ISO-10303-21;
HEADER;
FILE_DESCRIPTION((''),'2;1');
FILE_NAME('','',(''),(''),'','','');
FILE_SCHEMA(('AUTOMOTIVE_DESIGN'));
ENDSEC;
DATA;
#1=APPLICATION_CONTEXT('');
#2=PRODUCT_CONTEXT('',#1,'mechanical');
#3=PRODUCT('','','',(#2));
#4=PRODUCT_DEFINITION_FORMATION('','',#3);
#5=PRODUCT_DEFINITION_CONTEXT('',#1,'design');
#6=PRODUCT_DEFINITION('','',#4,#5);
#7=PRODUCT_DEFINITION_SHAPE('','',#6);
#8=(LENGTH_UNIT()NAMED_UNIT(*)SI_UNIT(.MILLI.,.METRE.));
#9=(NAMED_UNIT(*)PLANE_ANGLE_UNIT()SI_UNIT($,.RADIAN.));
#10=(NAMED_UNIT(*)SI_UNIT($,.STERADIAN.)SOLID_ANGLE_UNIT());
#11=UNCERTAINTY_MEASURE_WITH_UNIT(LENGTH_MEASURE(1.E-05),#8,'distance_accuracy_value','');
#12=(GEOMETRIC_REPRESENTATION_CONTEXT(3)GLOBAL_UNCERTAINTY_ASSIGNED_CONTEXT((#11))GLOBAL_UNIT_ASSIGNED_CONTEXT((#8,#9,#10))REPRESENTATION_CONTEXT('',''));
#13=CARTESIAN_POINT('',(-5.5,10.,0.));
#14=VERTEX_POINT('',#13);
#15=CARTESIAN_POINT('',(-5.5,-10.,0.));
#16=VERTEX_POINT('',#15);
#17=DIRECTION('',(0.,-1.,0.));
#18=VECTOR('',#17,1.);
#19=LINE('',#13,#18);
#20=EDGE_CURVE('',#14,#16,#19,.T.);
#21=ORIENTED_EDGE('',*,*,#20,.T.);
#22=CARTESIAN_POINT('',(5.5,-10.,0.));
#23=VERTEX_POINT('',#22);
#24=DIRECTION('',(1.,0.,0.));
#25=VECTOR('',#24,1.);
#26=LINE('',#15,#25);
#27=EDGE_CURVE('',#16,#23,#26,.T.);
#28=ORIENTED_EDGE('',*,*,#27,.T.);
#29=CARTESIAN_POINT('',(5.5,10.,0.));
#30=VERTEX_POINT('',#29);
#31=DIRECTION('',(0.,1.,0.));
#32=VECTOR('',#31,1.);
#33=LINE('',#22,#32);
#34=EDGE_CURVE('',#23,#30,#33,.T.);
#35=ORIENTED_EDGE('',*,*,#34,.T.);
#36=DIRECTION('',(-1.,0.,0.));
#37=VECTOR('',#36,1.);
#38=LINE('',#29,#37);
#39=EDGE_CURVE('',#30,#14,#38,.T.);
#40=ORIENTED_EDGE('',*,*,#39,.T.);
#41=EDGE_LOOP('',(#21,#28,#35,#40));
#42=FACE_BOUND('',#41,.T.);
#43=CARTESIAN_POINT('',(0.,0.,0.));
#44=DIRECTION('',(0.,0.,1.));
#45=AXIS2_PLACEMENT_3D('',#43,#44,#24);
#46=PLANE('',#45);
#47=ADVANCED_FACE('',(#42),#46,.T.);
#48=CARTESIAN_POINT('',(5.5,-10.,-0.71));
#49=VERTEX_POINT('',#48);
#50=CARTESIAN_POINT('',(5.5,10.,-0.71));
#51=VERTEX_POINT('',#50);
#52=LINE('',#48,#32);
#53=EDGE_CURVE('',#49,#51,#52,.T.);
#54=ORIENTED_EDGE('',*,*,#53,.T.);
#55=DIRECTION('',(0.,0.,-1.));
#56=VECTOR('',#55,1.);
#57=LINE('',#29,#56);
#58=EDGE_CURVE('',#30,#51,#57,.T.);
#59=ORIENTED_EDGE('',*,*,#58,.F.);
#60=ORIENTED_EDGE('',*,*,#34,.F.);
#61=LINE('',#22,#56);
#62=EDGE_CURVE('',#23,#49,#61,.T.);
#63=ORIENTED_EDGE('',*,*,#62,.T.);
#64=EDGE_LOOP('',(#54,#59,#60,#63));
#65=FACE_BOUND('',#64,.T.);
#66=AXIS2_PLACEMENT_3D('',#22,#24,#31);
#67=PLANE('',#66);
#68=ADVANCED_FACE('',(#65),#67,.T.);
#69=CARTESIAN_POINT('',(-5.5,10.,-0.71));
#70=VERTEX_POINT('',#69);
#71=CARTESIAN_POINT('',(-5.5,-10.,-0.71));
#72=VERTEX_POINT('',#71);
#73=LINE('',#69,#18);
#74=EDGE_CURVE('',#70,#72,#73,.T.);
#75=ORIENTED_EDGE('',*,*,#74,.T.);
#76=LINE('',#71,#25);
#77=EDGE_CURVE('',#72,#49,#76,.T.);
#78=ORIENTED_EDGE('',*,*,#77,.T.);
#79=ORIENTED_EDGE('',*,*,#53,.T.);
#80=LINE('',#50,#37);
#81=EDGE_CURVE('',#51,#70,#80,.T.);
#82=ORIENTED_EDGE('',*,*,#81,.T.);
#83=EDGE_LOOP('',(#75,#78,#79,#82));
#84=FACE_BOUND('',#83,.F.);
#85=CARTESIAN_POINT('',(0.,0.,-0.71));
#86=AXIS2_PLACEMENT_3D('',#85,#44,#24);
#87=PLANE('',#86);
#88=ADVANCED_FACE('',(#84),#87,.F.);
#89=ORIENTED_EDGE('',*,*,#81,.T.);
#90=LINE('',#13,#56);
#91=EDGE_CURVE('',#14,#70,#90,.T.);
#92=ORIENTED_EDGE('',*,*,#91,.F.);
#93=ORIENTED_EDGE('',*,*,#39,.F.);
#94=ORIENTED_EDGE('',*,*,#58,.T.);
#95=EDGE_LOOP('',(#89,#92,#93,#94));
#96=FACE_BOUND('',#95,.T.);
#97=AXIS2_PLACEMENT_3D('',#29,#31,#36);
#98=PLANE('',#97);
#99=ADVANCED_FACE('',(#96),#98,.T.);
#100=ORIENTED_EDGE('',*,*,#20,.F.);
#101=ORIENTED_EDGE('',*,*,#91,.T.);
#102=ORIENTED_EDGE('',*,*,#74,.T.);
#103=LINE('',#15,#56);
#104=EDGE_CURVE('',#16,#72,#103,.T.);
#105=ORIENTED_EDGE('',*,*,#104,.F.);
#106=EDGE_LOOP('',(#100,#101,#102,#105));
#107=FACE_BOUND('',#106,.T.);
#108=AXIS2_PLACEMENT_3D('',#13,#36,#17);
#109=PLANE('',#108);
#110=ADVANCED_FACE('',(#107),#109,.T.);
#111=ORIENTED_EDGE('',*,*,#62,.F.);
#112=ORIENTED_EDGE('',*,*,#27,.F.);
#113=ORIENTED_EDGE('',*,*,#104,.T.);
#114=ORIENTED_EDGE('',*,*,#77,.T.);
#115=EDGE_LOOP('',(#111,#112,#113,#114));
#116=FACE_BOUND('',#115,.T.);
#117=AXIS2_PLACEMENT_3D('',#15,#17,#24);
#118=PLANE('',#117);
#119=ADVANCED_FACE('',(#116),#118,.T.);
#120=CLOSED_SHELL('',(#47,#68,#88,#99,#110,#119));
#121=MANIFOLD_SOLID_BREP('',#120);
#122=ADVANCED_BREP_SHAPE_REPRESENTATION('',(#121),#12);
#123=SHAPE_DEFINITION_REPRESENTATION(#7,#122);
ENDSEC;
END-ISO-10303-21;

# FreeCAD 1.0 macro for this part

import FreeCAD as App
import Part
import Sketcher
from FreeCAD import Vector
Q = App.Units.Quantity


def add_polygon(sketch, points):
    """Adds a closed chain of lines whose ends are joined by coincident constraints."""
    first, n = sketch.GeometryCount, len(points)
    for a, b in zip(points, points[1:] + points[:1]):
        sketch.addGeometry(Part.LineSegment(App.Vector(*a, 0), App.Vector(*b, 0)), False)
    for i in range(n):
        sketch.addConstraint(Sketcher.Constraint("Coincident", first + i, 2, first + (i + 1) % n, 1))

doc = App.newDocument("Part")
body = doc.addObject("PartDesign::Body", "Body")

# Sketch on XY plane
sketch1 = body.newObject("Sketcher::SketchObject", "Sketch")
sketch1.AttachmentSupport = (doc.getObject("XY_Plane"), [""])
sketch1.MapMode = "FlatFace"
add_polygon(sketch1, [(-6, 10), (-6, -10), (6, -10), (6, 10)])  # lines 0-3
sketch1.addConstraint(Sketcher.Constraint("Vertical", 0))
sketch1.addConstraint(Sketcher.Constraint("Horizontal", 1))
sketch1.addConstraint(Sketcher.Constraint("Vertical", 2))
sketch1.addConstraint(Sketcher.Constraint("Horizontal", 3))
sketch1.addConstraint(Sketcher.Constraint("Symmetric", 0, 2, 2, 2, -1, 1))
sketch1.addConstraint(Sketcher.Constraint("DistanceX", 1, 1, 1, 2, Q("11 mm")))
sketch1.addConstraint(Sketcher.Constraint("DistanceY", 0, 2, 0, 1, Q("20 mm")))
pad1 = body.newObject("PartDesign::Pad", "Pad")
pad1.Profile = sketch1
pad1.Length = 0.71
pad1.Reversed = True

doc.recompute()
